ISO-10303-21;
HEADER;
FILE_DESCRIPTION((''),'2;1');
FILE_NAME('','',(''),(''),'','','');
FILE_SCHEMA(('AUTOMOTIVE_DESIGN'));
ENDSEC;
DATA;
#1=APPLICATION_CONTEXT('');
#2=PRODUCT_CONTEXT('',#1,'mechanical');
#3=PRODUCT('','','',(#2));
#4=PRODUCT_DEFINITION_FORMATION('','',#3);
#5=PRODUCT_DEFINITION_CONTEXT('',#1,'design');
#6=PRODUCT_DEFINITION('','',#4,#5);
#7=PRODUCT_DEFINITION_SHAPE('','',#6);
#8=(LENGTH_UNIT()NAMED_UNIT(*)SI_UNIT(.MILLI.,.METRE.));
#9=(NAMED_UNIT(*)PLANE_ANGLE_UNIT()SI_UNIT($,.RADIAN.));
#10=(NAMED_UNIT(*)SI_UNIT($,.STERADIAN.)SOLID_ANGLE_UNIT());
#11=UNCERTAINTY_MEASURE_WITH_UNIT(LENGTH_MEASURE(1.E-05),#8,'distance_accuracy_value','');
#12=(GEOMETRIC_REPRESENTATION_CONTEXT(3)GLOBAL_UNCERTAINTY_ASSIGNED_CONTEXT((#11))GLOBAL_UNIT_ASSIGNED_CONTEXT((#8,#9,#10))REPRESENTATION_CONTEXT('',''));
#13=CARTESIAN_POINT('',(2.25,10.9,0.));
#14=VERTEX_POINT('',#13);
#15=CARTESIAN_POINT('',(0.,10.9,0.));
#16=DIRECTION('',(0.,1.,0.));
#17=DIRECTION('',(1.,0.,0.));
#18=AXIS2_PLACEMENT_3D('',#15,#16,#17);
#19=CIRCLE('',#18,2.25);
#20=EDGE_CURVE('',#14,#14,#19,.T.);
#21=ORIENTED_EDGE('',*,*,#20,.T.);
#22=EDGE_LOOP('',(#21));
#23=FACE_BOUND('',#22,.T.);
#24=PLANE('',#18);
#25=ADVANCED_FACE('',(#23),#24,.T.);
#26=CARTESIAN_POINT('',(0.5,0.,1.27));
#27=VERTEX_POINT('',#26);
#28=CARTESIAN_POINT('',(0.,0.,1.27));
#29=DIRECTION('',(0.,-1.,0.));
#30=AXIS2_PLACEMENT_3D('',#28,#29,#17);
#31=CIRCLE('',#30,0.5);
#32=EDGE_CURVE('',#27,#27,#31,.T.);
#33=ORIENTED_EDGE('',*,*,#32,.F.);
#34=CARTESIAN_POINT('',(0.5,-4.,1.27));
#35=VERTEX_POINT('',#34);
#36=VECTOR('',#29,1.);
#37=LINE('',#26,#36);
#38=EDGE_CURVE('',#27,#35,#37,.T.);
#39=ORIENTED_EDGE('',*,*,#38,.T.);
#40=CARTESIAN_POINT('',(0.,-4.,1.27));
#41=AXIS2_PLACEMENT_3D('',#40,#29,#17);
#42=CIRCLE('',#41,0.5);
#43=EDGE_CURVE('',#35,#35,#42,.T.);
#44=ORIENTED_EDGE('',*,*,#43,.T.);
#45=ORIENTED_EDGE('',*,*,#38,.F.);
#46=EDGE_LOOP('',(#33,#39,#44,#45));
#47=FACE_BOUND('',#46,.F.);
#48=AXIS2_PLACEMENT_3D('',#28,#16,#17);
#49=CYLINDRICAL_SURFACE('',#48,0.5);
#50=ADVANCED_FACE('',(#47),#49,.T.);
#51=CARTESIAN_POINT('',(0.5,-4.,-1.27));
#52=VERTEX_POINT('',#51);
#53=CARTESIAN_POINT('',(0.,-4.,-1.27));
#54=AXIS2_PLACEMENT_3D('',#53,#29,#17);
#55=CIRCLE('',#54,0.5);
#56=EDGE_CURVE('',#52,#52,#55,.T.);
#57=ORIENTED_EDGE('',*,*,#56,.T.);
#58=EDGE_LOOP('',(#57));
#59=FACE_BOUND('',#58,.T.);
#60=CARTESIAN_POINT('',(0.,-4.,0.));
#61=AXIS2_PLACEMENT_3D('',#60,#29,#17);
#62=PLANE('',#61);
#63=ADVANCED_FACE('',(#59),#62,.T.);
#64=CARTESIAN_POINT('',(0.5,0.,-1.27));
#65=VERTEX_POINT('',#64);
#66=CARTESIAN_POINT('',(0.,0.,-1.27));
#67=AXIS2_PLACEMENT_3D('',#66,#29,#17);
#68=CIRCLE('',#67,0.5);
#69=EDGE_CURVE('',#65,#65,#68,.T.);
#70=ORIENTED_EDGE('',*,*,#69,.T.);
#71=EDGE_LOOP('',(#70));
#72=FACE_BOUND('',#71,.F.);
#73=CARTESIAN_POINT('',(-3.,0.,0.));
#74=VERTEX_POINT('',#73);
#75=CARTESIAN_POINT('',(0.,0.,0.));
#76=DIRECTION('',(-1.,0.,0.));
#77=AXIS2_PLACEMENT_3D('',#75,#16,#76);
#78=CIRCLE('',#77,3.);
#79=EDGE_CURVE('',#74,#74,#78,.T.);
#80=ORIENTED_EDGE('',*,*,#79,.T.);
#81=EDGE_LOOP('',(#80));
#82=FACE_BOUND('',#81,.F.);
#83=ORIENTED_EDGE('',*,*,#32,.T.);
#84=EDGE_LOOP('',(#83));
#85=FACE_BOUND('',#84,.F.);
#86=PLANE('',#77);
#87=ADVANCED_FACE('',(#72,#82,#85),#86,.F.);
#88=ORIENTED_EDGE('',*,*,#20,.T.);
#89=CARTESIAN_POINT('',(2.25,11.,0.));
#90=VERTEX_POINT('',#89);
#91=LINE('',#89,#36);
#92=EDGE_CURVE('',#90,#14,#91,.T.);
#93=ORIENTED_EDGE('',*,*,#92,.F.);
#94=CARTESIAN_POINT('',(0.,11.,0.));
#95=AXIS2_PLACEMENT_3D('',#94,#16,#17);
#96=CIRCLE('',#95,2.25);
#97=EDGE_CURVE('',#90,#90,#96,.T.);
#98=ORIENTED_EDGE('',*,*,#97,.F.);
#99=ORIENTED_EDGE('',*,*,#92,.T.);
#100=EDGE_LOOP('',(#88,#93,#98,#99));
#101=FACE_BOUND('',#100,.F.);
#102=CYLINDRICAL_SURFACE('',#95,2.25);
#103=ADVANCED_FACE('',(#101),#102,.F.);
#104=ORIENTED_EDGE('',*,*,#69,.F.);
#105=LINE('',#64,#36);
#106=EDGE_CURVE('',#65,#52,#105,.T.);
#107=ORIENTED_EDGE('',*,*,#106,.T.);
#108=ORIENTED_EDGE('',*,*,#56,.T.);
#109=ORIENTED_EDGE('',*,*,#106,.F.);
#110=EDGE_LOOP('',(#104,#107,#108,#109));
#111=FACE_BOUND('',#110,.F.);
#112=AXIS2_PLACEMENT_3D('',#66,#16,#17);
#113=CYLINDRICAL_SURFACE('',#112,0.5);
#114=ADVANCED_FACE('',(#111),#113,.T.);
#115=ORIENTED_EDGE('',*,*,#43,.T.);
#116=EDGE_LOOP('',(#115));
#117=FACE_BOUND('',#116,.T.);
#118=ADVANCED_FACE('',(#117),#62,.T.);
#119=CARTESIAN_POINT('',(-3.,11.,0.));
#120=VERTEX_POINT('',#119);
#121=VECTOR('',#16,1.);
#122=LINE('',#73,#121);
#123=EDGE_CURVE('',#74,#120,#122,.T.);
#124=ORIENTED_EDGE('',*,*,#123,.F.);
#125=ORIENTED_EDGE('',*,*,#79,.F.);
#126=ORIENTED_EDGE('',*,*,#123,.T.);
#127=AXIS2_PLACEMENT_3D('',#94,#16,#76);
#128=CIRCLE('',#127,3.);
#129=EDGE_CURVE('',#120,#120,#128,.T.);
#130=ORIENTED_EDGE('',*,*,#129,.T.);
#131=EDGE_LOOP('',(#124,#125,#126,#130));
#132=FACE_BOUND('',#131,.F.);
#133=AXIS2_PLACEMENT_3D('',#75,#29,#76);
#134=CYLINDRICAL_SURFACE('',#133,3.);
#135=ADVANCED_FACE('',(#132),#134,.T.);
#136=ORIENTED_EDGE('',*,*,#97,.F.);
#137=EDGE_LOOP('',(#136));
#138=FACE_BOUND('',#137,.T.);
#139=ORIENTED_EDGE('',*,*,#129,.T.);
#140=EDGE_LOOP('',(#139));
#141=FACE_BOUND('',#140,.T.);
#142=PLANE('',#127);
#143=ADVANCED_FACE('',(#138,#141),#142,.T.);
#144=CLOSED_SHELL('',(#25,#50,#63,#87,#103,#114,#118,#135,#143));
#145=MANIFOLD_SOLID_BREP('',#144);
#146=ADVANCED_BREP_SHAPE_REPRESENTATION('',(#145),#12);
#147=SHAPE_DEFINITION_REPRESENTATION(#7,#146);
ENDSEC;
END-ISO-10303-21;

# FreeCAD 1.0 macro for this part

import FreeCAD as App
import Part
import Sketcher

V = App.Vector

doc = App.newDocument("Part")
body = doc.addObject("PartDesign::Body", "Body")

# Sketch on XZ plane
sketch1 = body.newObject("Sketcher::SketchObject", "Sketch")
sketch1.AttachmentSupport = (doc.getObject("XZ_Plane"), [""])
sketch1.MapMode = "FlatFace"
sketch1.addGeometry(Part.Circle(V(0, 0, 0), V(0, 0, 1), 3), False)
sketch1.addConstraint([
    Sketcher.Constraint("Coincident", 0, 3, -1, 1),
    Sketcher.Constraint("Diameter", 0, 6.0),
])
pad1 = body.newObject("PartDesign::Pad", "Pad")
pad1.Profile = sketch1
pad1.Length = 11
pad1.Reversed = True

# Sketch on XZ plane
sketch2 = body.newObject("Sketcher::SketchObject", "Sketch001")
sketch2.AttachmentSupport = (doc.getObject("XZ_Plane"), [""])
sketch2.MapMode = "FlatFace"
sketch2.addGeometry([
    Part.Circle(V(0, 1.3, 0), V(0, 0, 1), 0.5),
    Part.Circle(V(0, -1.3, 0), V(0, 0, 1), 0.5),
], False)
sketch2.addConstraint([
    Sketcher.Constraint("Equal", 0, 1),
    Sketcher.Constraint("Symmetric", 0, 3, 1, 3, -1, 1),
    Sketcher.Constraint("PointOnObject", 0, 3, -2),
    Sketcher.Constraint("Diameter", 0, 1.0),
    Sketcher.Constraint("DistanceY", -1, 1, 0, 3, 1.27),
])
pad2 = body.newObject("PartDesign::Pad", "Pad001")
pad2.Profile = sketch2
pad2.Length = 4

# Sketch on XZ plane
sketch3 = body.newObject("Sketcher::SketchObject", "Sketch002")
sketch3.AttachmentSupport = (doc.getObject("XZ_Plane"), [""])
sketch3.MapMode = "FlatFace"
sketch3.AttachmentOffset = App.Placement(V(0, 0, -11), App.Rotation())
sketch3.addGeometry(Part.Circle(V(0, 0, 0), V(0, 0, 1), 2.2), False)
sketch3.addConstraint([
    Sketcher.Constraint("Coincident", 0, 3, -1, 1),
    Sketcher.Constraint("Diameter", 0, 4.5),
])
pocket1 = body.newObject("PartDesign::Pocket", "Pocket")
pocket1.Profile = sketch3
pocket1.Length = 0.1
pocket1.Reversed = True

doc.recompute()
